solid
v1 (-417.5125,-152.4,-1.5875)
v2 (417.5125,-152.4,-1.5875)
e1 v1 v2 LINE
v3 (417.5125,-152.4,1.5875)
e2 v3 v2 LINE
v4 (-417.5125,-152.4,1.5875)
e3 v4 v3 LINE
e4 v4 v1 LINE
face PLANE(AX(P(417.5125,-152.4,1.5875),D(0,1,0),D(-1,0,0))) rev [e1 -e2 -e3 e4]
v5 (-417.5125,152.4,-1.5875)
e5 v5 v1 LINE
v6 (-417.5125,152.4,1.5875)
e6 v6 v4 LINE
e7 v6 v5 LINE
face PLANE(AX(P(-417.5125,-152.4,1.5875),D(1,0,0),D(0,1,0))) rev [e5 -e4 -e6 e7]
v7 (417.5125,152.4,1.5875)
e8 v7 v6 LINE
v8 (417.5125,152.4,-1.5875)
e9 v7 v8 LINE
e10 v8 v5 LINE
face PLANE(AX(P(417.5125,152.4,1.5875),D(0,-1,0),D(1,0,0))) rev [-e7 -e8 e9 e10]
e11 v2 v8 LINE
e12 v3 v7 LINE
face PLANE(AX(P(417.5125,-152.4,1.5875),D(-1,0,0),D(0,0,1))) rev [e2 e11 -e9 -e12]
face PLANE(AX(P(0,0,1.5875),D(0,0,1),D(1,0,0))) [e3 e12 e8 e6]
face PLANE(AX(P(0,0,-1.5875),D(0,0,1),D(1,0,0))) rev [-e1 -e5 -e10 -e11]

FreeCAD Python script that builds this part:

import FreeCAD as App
import Part
import Sketcher
Q = App.Units.Quantity

doc = App.newDocument("Part")
body = doc.addObject("PartDesign::Body", "Body")

# Sketch on XY plane
sketch1 = body.newObject("Sketcher::SketchObject", "Sketch")
sketch1.AttachmentSupport = (doc.getObject("XY_Plane"), [""])
sketch1.MapMode = "FlatFace"
sketch1.addGeometry(Part.LineSegment(App.Vector(-418, 152, 0), App.Vector(-418, -152, 0)), False)
sketch1.addGeometry(Part.LineSegment(App.Vector(-418, -152, 0), App.Vector(418, -152, 0)), False)
sketch1.addGeometry(Part.LineSegment(App.Vector(418, -152, 0), App.Vector(418, 152, 0)), False)
sketch1.addGeometry(Part.LineSegment(App.Vector(418, 152, 0), App.Vector(-418, 152, 0)), False)
sketch1.addConstraint(Sketcher.Constraint("Coincident", 0, 2, 1, 1))
sketch1.addConstraint(Sketcher.Constraint("Coincident", 1, 2, 2, 1))
sketch1.addConstraint(Sketcher.Constraint("Coincident", 2, 2, 3, 1))
sketch1.addConstraint(Sketcher.Constraint("Coincident", 3, 2, 0, 1))
sketch1.addConstraint(Sketcher.Constraint("Vertical", 0))
sketch1.addConstraint(Sketcher.Constraint("Horizontal", 1))
sketch1.addConstraint(Sketcher.Constraint("Vertical", 2))
sketch1.addConstraint(Sketcher.Constraint("Horizontal", 3))
sketch1.addConstraint(Sketcher.Constraint("Symmetric", 0, 2, 2, 2, -1, 1))
sketch1.addConstraint(Sketcher.Constraint("DistanceY", 0, 2, 0, 1, Q("12 in")))
sketch1.addConstraint(Sketcher.Constraint("DistanceX", 1, 1, 1, 2, Q("32.875 in")))
pad1 = body.newObject("PartDesign::Pad", "Pad")
pad1.Profile = sketch1
pad1.Length = Q("0.125 in")
pad1.Midplane = True

doc.recompute()
